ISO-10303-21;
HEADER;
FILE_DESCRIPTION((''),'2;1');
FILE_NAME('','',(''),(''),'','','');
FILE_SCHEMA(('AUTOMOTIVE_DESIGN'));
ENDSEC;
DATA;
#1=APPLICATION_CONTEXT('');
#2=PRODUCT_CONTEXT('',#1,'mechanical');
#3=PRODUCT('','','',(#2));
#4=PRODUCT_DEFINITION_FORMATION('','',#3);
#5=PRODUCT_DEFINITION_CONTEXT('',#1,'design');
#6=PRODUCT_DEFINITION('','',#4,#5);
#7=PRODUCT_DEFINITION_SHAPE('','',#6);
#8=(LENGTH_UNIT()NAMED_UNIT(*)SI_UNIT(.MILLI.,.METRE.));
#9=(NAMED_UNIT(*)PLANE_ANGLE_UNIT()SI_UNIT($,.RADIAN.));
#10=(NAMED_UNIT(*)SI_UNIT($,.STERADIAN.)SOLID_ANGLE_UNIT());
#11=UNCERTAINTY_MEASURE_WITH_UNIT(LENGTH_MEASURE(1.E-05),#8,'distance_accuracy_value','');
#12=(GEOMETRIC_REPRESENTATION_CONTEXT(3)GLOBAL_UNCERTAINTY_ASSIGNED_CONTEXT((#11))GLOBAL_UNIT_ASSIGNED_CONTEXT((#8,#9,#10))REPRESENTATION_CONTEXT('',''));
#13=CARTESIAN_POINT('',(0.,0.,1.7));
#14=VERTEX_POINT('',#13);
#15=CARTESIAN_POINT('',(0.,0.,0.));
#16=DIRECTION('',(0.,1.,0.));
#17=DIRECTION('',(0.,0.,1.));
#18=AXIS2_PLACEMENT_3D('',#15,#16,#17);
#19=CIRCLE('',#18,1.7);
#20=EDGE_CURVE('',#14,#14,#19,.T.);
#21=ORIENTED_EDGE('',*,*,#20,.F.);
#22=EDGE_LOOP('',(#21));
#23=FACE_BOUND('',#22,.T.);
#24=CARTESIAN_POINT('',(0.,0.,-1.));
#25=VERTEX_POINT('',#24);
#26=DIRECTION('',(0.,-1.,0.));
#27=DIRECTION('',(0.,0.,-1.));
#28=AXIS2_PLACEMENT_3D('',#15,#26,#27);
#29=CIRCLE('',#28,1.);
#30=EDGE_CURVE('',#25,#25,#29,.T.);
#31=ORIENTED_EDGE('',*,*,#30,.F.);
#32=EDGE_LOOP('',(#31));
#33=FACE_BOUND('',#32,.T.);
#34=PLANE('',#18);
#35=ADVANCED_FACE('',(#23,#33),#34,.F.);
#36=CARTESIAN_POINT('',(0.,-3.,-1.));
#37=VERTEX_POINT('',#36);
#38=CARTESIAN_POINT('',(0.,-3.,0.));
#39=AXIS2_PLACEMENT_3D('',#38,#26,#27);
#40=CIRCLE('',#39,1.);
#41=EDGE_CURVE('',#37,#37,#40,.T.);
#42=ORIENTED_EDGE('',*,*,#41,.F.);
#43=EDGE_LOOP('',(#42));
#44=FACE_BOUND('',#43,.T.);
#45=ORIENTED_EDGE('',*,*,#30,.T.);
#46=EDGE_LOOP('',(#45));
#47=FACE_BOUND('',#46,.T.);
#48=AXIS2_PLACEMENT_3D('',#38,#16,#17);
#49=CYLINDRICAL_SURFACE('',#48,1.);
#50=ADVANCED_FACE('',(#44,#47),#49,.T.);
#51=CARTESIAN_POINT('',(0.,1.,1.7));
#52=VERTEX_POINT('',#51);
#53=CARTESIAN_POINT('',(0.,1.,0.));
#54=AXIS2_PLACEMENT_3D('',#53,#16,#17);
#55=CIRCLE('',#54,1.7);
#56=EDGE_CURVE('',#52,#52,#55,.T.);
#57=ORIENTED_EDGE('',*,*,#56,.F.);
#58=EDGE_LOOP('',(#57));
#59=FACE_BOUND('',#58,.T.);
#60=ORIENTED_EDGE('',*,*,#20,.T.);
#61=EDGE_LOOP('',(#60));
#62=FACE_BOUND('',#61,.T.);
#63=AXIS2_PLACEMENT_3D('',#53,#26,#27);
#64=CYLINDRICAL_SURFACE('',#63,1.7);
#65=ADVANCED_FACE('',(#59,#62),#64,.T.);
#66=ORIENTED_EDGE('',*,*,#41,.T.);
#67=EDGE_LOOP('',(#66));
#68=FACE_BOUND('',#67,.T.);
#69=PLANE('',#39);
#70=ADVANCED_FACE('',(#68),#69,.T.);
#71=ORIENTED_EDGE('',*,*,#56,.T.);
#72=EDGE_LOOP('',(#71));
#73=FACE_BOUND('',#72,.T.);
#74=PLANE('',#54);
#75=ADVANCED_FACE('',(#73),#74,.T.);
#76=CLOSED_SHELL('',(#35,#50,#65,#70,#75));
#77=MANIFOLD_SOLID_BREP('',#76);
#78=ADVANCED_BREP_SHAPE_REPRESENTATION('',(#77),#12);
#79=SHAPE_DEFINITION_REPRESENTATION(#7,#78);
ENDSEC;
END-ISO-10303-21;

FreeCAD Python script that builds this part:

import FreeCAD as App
import Part
import Sketcher

V = App.Vector

doc = App.newDocument("Part")
body = doc.addObject("PartDesign::Body", "Body")

sketch1 = body.newObject("Sketcher::SketchObject", "Sketch")
sketch1.AttachmentSupport = (doc.getObject("XZ_Plane"), [""])
sketch1.MapMode = "FlatFace"
sketch1.addGeometry(Part.Circle(V(0, 0, 0), V(0, 0, 1), 1.7), False)
sketch1.addConstraint(Sketcher.Constraint("Coincident", 0, 3, -1, 1))
sketch1.addConstraint(Sketcher.Constraint("Diameter", 0, 3.4))
pad1 = body.newObject("PartDesign::Pad", "Pad")
pad1.Profile = sketch1
pad1.Length = 1
pad1.Reversed = True

sketch2 = body.newObject("Sketcher::SketchObject", "Sketch001")
sketch2.AttachmentSupport = (doc.getObject("XZ_Plane"), [""])
sketch2.MapMode = "FlatFace"
sketch2.addGeometry(Part.Circle(V(0, 0, 0), V(0, 0, 1), 1), False)
sketch2.addConstraint(Sketcher.Constraint("Coincident", 0, 3, -1, 1))
sketch2.addConstraint(Sketcher.Constraint("Diameter", 0, 2.0))
pad2 = body.newObject("PartDesign::Pad", "Pad001")
pad2.Profile = sketch2
pad2.Length = 3

doc.recompute()
